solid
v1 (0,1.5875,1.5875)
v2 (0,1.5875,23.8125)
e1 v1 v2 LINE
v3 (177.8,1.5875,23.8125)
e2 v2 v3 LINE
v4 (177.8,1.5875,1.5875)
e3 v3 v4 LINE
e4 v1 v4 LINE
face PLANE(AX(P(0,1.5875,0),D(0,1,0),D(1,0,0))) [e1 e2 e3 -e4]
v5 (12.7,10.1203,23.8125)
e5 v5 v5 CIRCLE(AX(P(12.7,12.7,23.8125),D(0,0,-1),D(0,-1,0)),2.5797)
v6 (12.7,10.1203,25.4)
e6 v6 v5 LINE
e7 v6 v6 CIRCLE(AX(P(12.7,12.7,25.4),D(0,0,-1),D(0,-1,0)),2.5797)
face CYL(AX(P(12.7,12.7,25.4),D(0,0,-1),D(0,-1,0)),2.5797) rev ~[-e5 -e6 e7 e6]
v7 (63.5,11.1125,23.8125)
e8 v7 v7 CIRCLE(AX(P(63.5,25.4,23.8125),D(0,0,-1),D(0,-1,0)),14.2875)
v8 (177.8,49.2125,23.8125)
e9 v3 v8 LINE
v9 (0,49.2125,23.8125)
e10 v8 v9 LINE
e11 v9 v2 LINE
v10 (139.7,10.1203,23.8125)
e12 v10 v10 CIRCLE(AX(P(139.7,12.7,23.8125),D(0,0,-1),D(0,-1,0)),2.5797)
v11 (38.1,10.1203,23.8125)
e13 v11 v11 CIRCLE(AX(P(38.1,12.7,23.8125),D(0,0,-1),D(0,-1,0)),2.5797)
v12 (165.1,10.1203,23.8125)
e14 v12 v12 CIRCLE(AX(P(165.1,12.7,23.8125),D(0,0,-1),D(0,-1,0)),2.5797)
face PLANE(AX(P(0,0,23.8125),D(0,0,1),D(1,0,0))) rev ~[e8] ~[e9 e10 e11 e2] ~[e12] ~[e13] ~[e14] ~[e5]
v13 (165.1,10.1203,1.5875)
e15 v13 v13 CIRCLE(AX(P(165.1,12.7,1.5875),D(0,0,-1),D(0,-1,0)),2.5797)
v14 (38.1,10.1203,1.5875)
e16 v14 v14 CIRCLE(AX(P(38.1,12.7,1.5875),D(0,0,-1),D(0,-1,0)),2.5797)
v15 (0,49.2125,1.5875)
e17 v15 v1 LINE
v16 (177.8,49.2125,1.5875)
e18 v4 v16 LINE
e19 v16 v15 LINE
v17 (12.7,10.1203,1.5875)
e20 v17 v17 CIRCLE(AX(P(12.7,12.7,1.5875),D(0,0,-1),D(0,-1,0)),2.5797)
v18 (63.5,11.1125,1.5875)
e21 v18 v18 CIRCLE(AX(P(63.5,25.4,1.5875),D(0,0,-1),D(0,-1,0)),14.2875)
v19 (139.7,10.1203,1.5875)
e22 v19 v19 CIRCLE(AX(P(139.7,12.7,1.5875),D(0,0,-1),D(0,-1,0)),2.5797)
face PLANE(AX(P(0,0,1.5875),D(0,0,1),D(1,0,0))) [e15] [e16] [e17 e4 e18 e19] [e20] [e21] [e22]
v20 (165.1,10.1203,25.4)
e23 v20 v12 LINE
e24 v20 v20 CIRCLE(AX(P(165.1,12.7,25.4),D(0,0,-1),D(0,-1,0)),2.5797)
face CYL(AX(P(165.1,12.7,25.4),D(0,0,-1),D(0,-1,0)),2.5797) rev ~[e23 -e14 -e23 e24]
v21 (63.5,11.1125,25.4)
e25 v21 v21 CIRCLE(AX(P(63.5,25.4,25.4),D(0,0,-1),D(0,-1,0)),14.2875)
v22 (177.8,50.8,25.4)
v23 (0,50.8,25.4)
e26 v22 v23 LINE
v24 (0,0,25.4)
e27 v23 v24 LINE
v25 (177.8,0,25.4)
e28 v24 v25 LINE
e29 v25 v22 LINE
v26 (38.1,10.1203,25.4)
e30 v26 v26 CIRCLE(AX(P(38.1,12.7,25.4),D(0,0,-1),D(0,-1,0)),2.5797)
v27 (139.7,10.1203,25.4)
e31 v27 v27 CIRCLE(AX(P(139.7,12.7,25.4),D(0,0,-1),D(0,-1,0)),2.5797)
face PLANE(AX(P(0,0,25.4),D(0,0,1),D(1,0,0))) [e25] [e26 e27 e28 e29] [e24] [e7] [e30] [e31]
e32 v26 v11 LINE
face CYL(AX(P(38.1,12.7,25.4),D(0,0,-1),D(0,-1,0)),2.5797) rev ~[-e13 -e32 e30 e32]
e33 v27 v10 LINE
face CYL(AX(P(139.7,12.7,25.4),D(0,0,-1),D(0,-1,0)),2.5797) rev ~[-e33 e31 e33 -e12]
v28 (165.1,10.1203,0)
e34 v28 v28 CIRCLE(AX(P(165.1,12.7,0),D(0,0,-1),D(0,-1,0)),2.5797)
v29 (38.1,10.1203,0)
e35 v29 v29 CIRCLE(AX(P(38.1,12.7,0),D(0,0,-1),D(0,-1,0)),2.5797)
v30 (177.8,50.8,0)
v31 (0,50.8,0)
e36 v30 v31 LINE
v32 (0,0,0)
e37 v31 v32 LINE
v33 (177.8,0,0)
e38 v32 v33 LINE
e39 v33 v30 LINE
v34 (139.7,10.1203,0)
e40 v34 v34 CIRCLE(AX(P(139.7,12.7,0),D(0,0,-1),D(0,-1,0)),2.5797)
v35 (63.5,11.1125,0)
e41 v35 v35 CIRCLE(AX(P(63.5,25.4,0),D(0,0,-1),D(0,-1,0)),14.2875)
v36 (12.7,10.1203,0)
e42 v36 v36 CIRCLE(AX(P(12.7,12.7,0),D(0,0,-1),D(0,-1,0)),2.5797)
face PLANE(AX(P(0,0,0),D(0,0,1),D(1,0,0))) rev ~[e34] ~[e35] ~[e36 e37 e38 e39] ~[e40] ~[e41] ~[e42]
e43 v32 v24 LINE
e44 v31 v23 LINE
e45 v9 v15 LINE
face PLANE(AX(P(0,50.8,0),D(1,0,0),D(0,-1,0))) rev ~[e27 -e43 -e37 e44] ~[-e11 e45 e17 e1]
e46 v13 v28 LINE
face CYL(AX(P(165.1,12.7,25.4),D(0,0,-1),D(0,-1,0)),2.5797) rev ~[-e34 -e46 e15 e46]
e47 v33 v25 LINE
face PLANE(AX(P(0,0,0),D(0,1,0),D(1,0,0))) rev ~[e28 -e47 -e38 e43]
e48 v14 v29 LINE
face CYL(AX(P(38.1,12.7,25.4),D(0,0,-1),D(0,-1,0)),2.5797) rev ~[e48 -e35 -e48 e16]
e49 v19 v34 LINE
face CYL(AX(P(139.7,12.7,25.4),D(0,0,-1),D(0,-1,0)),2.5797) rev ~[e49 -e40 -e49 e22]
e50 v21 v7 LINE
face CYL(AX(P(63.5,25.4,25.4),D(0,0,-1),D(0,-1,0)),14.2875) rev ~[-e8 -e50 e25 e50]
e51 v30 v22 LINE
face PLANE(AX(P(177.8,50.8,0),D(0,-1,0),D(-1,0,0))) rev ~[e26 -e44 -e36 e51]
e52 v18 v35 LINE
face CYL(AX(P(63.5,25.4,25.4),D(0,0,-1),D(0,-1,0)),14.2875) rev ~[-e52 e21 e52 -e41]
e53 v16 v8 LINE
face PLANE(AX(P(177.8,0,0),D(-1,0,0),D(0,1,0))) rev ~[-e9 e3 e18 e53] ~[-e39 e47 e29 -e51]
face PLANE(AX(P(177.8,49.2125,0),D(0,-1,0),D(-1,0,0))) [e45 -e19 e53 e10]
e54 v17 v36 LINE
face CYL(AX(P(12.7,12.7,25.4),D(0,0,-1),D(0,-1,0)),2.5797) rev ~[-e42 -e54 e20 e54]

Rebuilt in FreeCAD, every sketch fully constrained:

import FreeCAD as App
import Part
import Sketcher

V = App.Vector
Q = App.Units.Quantity


def faces_at(feature, points):
    """Names of the faces that lie closest to the given points."""
    faces = feature.Shape.Faces
    near = lambda p: min(range(len(faces)), key=lambda i: faces[i].distToShape(Part.Vertex(*p))[0])
    return sorted({f"Face{near(p) + 1}" for p in points})


def add_polygon(sketch, points):
    """Adds a closed chain of lines whose ends are joined by coincident constraints."""
    first, n = sketch.GeometryCount, len(points)
    for a, b in zip(points, points[1:] + points[:1]):
        sketch.addGeometry(Part.LineSegment(App.Vector(*a, 0), App.Vector(*b, 0)), False)
    for i in range(n):
        sketch.addConstraint(Sketcher.Constraint("Coincident", first + i, 2, first + (i + 1) % n, 1))

doc = App.newDocument("Part")
body = doc.addObject("PartDesign::Body", "Body")

# Sketch on XY plane
sketch1 = doc.addObject("Sketcher::SketchObject", "Sketch")
body.addObject(sketch1)
sketch1.AttachmentSupport = (doc.XY_Plane, [""])
sketch1.MapMode = "FlatFace"
add_polygon(sketch1, [(0, 51), (0, 0), (178, 0), (178, 51)])  # lines 0-3
sketch1.addConstraint([
    Sketcher.Constraint("Vertical", 0),
    Sketcher.Constraint("Horizontal", 1),
    Sketcher.Constraint("Vertical", 2),
    Sketcher.Constraint("Horizontal", 3),
    Sketcher.Constraint("Coincident", 0, 2, -1, 1),
    Sketcher.Constraint("DistanceX", 1, 1, 1, 2, Q("7 in")),
    Sketcher.Constraint("DistanceY", 0, 2, 0, 1, Q("2 in")),
])
pad1 = doc.addObject("PartDesign::Pad", "Pad")
body.addObject(pad1)
pad1.Profile = sketch1
pad1.Length = Q("1 in")
doc.recompute()

thickness = doc.addObject("PartDesign::Thickness", "Thickness")
body.addObject(thickness)
thickness.Base = (pad1, faces_at(pad1, [(0, 33.867, 16.933), (177.8, 16.933, 16.933)]))
thickness.Value = Q("0.0625 in")
thickness.Reversed = True
thickness.Join = "Intersection"

# Sketch on XY plane
sketch2 = doc.addObject("Sketcher::SketchObject", "Sketch001")
body.addObject(sketch2)
sketch2.AttachmentSupport = (doc.XY_Plane, [""])
sketch2.MapMode = "FlatFace"
sketch2.AttachmentOffset = App.Placement(V(0, 0, 1 * 25.4), App.Rotation())
sketch2.addGeometry(Part.Circle(V(64, 25, 0), V(0, 0, 1), 14), False)
sketch2.addConstraint([
    Sketcher.Constraint("Diameter", 0, Q("1.125 in")),
    Sketcher.Constraint("DistanceY", -1, 1, 0, 3, Q("1 in")),
    Sketcher.Constraint("DistanceX", -1, 1, 0, 3, Q("2.5 in")),
])
doc.recompute()
hole = doc.addObject("PartDesign::Hole", "Hole")
body.addObject(hole)
hole.Profile = sketch2
hole.ThreadType = "None"
hole.Diameter = Q("1.125 in")
hole.DepthType = "ThroughAll"

# Sketch on XY plane
sketch3 = doc.addObject("Sketcher::SketchObject", "Sketch002")
body.addObject(sketch3)
sketch3.AttachmentSupport = (doc.XY_Plane, [""])
sketch3.MapMode = "FlatFace"
sketch3.AttachmentOffset = App.Placement(V(0, 0, 1 * 25.4), App.Rotation())
sketch3.addGeometry(Part.Circle(V(12.7, 12.7, 0), V(0, 0, 1), 2.6), False)
sketch3.addConstraint([
    Sketcher.Constraint("Diameter", 0, Q("0.203126 in")),
    Sketcher.Constraint("DistanceX", -1, 1, 0, 3, Q("0.5 in")),
    Sketcher.Constraint("DistanceY", -1, 1, 0, 3, Q("0.5 in")),
])
doc.recompute()
hole2 = doc.addObject("PartDesign::Hole", "Hole001")
body.addObject(hole2)
hole2.Profile = sketch3
hole2.ThreadType = "None"
hole2.Diameter = Q("0.203126 in")
hole2.DepthType = "ThroughAll"

# Sketch on XY plane
sketch4 = doc.addObject("Sketcher::SketchObject", "Sketch003")
body.addObject(sketch4)
sketch4.AttachmentSupport = (doc.XY_Plane, [""])
sketch4.MapMode = "FlatFace"
sketch4.AttachmentOffset = App.Placement(V(0, 0, 1 * 25.4), App.Rotation())
sketch4.addGeometry(Part.Circle(V(38.1, 12.7, 0), V(0, 0, 1), 2.6), False)
sketch4.addConstraint([
    Sketcher.Constraint("Diameter", 0, Q("0.203126 in")),
    Sketcher.Constraint("DistanceX", -1, 1, 0, 3, Q("1.5 in")),
    Sketcher.Constraint("DistanceY", -1, 1, 0, 3, Q("0.5 in")),
])
doc.recompute()
hole3 = doc.addObject("PartDesign::Hole", "Hole002")
body.addObject(hole3)
hole3.Profile = sketch4
hole3.ThreadType = "None"
hole3.Diameter = Q("0.203126 in")
hole3.DepthType = "ThroughAll"

# Sketch on XY plane
sketch5 = doc.addObject("Sketcher::SketchObject", "Sketch004")
body.addObject(sketch5)
sketch5.AttachmentSupport = (doc.XY_Plane, [""])
sketch5.MapMode = "FlatFace"
sketch5.AttachmentOffset = App.Placement(V(0, 0, 1 * 25.4), App.Rotation())
sketch5.addGeometry(Part.Circle(V(165.1, 12.7, 0), V(0, 0, 1), 2.6), False)
sketch5.addConstraint([
    Sketcher.Constraint("Diameter", 0, Q("0.203126 in")),
    Sketcher.Constraint("DistanceX", -1, 1, 0, 3, Q("6.5 in")),
    Sketcher.Constraint("DistanceY", -1, 1, 0, 3, Q("0.5 in")),
])
doc.recompute()
hole4 = doc.addObject("PartDesign::Hole", "Hole003")
body.addObject(hole4)
hole4.Profile = sketch5
hole4.ThreadType = "None"
hole4.Diameter = Q("0.203126 in")
hole4.DepthType = "ThroughAll"

# Sketch on XY plane
sketch6 = doc.addObject("Sketcher::SketchObject", "Sketch005")
body.addObject(sketch6)
sketch6.AttachmentSupport = (doc.XY_Plane, [""])
sketch6.MapMode = "FlatFace"
sketch6.AttachmentOffset = App.Placement(V(0, 0, 1 * 25.4), App.Rotation())
sketch6.addGeometry(Part.Circle(V(139.7, 12.7, 0), V(0, 0, 1), 2.6), False)
sketch6.addConstraint([
    Sketcher.Constraint("Diameter", 0, Q("0.203126 in")),
    Sketcher.Constraint("DistanceX", -1, 1, 0, 3, Q("5.5 in")),
    Sketcher.Constraint("DistanceY", -1, 1, 0, 3, Q("0.5 in")),
])
doc.recompute()
hole5 = doc.addObject("PartDesign::Hole", "Hole004")
body.addObject(hole5)
hole5.Profile = sketch6
hole5.ThreadType = "None"
hole5.Diameter = Q("0.203126 in")
hole5.DepthType = "ThroughAll"

doc.recompute()
